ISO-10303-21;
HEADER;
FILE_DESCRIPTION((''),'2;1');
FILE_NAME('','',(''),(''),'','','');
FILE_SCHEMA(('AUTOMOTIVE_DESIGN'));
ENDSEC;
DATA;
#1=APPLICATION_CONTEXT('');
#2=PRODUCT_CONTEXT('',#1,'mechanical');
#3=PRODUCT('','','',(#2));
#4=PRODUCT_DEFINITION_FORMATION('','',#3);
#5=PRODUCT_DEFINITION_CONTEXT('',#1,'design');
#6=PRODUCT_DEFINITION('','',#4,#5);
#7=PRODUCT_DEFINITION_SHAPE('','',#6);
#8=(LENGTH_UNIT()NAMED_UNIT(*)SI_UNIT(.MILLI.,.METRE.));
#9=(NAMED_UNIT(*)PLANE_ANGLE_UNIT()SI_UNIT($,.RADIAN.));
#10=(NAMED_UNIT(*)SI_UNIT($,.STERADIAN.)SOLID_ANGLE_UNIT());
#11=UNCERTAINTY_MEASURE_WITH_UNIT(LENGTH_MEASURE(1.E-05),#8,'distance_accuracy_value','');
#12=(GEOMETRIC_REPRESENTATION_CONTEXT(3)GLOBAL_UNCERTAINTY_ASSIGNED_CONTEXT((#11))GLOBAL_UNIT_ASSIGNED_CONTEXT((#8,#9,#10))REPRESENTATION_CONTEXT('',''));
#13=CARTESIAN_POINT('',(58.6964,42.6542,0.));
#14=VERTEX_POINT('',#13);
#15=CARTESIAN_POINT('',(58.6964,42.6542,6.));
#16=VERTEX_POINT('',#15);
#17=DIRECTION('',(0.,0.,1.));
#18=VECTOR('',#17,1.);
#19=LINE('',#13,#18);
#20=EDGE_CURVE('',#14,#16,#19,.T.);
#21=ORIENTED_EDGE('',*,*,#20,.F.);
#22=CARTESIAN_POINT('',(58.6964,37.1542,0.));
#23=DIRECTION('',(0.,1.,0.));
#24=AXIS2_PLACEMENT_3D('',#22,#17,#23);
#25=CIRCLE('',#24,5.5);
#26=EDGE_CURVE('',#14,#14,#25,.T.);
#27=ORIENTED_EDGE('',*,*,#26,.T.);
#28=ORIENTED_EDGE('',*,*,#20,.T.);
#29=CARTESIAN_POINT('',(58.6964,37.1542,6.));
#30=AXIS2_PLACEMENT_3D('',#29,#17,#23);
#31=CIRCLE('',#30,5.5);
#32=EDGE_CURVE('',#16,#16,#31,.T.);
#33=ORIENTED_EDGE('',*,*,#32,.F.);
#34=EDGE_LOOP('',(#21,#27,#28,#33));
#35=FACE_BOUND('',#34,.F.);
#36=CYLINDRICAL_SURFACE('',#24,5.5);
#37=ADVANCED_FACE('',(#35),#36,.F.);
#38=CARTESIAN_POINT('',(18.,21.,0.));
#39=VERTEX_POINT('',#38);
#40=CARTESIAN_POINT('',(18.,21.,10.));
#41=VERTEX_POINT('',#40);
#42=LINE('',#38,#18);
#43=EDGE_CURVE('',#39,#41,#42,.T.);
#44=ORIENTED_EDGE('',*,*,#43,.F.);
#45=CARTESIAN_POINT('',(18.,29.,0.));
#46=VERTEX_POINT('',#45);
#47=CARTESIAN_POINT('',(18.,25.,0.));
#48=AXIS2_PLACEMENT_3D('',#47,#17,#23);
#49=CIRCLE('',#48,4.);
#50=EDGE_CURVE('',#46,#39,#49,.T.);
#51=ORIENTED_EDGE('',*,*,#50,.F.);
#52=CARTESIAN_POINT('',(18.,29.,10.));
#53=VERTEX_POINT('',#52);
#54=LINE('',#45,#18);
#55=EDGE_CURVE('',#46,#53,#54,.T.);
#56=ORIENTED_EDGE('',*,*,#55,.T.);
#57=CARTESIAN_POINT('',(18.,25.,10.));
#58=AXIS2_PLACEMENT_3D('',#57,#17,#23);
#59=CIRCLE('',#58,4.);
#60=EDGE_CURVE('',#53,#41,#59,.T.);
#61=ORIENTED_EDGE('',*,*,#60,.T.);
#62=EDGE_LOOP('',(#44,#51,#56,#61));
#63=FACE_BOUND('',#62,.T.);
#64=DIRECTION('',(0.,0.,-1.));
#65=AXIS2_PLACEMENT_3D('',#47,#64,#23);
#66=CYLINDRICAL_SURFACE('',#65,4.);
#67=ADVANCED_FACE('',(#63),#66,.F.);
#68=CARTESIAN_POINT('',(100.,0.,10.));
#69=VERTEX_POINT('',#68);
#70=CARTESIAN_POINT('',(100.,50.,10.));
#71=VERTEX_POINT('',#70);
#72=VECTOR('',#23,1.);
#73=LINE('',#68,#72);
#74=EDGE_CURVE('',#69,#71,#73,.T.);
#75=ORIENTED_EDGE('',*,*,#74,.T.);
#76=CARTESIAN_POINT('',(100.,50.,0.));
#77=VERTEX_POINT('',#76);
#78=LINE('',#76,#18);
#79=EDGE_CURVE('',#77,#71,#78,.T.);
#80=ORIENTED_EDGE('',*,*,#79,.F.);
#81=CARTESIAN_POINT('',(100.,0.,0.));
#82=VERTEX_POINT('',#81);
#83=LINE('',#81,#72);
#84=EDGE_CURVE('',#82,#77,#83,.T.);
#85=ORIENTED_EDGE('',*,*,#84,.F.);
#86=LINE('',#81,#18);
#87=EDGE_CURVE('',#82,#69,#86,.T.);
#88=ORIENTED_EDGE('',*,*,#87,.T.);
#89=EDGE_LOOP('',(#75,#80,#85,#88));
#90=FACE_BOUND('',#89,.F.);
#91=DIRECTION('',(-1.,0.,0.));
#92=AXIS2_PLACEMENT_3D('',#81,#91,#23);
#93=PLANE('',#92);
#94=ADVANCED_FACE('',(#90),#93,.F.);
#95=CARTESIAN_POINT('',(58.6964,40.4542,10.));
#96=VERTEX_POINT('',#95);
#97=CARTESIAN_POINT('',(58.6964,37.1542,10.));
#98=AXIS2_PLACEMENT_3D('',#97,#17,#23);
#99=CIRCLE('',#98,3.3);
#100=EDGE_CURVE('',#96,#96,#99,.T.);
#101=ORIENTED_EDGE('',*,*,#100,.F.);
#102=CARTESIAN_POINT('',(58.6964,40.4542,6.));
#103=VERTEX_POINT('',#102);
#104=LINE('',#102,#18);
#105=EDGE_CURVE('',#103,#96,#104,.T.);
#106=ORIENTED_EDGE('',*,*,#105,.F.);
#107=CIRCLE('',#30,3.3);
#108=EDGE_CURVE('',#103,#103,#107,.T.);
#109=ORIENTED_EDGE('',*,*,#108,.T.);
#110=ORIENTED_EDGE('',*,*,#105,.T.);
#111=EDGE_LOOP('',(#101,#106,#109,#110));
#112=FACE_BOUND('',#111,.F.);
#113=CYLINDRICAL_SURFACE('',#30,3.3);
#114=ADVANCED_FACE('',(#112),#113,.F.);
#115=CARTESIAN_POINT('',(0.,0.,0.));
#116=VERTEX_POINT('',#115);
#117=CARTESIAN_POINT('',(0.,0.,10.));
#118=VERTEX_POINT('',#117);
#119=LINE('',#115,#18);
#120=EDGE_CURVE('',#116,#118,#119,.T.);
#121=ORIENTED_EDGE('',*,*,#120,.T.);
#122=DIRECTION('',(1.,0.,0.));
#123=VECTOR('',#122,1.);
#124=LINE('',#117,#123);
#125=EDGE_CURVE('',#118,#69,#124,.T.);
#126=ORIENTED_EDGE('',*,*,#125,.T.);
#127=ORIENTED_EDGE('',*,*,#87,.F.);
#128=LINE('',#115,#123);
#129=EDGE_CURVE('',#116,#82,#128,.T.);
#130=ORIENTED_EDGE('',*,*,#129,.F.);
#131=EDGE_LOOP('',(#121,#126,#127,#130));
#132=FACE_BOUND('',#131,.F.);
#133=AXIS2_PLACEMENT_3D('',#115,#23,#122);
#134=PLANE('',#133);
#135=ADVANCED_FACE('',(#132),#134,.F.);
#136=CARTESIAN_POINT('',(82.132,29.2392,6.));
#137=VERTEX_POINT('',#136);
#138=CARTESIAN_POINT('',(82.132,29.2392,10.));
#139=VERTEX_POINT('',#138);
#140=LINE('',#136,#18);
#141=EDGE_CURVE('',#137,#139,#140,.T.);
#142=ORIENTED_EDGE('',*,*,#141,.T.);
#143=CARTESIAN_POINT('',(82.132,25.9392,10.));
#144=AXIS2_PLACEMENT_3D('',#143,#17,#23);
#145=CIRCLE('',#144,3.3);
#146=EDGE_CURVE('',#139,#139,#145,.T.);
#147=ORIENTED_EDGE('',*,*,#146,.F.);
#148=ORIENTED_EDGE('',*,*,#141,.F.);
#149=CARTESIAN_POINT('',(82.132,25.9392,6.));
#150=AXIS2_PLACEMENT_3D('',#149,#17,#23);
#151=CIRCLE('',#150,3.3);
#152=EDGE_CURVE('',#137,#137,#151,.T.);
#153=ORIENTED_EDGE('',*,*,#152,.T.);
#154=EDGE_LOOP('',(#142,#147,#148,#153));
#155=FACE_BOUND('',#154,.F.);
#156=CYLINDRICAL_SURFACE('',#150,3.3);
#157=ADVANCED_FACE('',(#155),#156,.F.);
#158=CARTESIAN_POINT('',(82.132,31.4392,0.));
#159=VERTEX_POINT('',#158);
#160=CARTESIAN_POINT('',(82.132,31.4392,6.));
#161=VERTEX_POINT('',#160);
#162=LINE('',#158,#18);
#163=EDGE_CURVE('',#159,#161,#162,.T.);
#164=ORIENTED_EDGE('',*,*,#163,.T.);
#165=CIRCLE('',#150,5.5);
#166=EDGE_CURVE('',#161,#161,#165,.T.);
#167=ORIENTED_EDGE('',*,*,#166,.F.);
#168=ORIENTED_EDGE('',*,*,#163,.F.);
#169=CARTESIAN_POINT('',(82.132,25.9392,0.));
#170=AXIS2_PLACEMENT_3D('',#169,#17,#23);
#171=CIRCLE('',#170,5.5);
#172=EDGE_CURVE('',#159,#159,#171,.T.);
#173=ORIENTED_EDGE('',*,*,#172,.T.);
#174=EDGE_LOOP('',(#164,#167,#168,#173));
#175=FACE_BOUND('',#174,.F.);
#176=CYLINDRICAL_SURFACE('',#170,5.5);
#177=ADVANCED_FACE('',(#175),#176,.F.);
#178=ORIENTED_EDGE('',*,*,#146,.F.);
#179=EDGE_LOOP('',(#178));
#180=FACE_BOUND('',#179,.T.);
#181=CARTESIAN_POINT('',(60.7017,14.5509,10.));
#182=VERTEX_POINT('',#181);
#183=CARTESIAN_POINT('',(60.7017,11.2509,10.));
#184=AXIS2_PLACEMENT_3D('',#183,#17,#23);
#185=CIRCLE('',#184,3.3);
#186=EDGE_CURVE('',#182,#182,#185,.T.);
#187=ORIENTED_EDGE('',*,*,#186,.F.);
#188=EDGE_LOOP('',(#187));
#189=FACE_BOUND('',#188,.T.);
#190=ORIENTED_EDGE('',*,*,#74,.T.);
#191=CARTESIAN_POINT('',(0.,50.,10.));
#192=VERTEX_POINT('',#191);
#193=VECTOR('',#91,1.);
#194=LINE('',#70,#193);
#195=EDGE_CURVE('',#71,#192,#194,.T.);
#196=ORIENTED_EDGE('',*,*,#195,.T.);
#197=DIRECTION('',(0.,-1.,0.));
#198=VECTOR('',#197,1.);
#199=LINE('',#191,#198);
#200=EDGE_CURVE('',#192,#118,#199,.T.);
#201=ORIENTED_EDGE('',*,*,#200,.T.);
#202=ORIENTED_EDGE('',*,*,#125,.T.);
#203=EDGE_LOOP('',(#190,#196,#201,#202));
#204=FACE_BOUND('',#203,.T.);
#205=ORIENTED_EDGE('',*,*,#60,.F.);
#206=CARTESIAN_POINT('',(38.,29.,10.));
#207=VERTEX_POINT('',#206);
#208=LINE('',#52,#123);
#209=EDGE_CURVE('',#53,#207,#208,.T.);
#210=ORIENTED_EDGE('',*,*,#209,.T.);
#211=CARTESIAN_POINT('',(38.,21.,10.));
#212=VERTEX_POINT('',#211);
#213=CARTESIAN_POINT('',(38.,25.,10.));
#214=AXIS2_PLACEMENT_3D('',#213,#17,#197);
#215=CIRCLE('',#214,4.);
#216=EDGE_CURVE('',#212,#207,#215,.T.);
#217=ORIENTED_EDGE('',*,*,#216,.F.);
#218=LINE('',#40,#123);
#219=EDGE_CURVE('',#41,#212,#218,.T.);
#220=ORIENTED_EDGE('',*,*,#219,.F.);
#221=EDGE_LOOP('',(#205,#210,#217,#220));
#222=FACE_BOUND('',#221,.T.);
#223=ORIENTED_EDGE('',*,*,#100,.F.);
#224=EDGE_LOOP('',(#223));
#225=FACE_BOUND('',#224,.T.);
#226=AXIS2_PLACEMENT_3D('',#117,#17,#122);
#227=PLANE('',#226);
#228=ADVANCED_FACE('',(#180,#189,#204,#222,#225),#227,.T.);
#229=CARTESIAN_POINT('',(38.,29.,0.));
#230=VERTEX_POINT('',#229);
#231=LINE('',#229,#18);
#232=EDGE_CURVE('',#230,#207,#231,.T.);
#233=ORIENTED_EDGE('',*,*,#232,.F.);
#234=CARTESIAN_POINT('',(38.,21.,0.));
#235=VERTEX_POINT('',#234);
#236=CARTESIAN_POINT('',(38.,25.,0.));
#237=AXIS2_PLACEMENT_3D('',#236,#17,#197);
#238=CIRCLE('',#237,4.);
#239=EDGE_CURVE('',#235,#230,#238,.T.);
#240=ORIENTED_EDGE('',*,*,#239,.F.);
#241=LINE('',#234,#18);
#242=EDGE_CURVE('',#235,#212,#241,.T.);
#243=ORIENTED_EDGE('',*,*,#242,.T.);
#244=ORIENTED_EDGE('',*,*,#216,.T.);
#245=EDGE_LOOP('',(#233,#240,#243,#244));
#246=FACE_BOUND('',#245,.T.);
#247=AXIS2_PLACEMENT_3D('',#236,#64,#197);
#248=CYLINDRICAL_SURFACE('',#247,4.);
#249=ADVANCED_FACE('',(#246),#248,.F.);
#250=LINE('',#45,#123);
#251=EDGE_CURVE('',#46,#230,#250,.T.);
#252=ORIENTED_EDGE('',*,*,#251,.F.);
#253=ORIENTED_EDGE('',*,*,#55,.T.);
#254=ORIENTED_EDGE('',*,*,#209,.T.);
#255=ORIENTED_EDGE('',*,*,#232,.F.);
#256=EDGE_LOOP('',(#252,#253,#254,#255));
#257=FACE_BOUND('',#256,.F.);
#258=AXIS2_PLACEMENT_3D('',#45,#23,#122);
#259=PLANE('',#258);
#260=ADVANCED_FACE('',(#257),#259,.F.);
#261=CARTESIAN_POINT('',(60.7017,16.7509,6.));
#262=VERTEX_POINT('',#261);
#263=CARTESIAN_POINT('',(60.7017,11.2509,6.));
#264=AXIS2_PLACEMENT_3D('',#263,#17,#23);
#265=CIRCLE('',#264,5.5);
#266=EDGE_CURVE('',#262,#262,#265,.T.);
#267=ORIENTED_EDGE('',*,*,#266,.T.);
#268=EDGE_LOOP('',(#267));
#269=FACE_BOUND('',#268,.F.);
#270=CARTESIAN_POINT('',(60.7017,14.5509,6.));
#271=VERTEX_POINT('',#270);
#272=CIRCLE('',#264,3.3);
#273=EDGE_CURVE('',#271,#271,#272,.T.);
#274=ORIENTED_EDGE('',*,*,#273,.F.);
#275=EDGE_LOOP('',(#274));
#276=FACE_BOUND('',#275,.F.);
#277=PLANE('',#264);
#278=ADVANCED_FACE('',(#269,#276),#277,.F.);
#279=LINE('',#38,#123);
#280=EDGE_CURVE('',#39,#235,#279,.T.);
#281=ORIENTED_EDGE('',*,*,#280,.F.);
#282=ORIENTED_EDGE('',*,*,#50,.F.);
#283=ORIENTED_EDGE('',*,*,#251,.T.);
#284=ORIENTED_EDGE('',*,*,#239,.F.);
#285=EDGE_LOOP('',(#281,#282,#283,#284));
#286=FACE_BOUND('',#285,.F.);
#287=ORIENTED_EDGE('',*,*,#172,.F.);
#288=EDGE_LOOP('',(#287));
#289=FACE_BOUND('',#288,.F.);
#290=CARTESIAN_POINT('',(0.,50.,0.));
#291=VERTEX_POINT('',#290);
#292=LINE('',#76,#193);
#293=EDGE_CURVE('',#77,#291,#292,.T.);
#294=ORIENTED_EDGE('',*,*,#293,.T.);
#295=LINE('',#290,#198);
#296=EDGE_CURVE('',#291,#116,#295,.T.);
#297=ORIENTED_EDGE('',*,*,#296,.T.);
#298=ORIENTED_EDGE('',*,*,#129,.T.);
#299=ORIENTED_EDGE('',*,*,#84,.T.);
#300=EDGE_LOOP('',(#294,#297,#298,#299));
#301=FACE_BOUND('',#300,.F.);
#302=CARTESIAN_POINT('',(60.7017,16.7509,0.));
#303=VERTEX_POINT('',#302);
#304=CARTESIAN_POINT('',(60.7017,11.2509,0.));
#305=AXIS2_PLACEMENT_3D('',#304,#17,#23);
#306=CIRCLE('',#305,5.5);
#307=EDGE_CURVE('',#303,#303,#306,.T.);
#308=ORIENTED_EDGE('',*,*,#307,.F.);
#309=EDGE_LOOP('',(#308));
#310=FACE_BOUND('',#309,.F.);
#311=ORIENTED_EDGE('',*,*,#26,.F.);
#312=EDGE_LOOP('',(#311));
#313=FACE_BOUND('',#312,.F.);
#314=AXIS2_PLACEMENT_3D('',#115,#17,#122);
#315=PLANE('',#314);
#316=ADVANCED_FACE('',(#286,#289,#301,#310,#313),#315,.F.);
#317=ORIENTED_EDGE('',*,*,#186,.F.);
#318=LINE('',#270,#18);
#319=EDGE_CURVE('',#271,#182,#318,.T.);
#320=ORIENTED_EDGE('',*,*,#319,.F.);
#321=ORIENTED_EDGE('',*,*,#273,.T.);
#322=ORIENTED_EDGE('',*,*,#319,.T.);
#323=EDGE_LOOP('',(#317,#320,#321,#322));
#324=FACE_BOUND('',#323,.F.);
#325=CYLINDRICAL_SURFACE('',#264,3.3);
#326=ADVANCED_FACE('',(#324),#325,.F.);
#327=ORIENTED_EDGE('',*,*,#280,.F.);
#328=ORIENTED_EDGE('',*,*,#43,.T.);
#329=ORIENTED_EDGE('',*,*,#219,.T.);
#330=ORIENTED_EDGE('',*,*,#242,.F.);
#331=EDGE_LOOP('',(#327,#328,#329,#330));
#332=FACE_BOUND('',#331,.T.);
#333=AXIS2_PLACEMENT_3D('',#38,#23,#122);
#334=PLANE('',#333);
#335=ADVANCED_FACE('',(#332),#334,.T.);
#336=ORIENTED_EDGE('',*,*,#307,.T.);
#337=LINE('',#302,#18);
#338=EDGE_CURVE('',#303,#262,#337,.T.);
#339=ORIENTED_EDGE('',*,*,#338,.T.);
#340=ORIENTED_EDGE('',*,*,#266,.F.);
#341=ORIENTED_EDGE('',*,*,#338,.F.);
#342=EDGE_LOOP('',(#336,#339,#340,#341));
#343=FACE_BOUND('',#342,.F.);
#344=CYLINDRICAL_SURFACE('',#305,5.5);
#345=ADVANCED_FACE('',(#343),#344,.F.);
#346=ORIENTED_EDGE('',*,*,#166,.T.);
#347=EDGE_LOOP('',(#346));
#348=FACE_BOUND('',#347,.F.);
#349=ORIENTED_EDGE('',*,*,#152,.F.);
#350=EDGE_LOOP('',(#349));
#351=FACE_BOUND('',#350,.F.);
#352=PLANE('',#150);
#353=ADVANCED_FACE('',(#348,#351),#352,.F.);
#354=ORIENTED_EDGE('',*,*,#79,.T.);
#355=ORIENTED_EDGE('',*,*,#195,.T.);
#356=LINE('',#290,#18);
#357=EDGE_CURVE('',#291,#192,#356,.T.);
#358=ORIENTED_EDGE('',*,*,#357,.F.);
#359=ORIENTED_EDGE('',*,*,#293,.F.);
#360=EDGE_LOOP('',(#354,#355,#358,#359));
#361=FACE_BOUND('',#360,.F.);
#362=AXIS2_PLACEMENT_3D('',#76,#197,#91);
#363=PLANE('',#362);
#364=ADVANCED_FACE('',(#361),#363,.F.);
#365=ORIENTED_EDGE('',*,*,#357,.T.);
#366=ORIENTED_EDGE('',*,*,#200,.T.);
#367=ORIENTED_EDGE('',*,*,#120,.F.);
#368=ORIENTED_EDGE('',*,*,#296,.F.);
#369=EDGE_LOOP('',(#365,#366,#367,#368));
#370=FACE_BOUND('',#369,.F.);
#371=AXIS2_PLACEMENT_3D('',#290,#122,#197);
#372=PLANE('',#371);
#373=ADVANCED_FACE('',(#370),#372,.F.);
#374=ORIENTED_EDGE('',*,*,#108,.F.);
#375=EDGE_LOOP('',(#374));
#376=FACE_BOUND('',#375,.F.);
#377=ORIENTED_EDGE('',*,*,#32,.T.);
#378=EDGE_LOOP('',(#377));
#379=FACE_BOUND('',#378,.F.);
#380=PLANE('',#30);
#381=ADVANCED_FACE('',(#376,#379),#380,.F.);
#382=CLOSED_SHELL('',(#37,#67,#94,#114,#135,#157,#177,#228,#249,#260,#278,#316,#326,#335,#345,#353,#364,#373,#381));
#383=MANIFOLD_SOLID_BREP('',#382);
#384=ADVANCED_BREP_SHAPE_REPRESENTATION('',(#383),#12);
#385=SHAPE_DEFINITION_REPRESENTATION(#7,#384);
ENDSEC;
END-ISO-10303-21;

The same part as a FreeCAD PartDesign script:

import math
import FreeCAD as App
import Part
import Sketcher
Q = App.Units.Quantity

doc = App.newDocument("Part")
body = doc.addObject("PartDesign::Body", "Body")

sketch1 = body.newObject("Sketcher::SketchObject", "Sketch")
sketch1.AttachmentSupport = (doc.getObject("XY_Plane"), [""])
sketch1.MapMode = "FlatFace"
sketch1.addGeometry([
    Part.LineSegment(App.Vector(0, 50, 0), App.Vector(0, 0, 0)),
    Part.LineSegment(App.Vector(0, 0, 0), App.Vector(100, 0, 0)),
    Part.LineSegment(App.Vector(100, 0, 0), App.Vector(100, 50, 0)),
    Part.LineSegment(App.Vector(100, 50, 0), App.Vector(0, 50, 0)),
    Part.ArcOfCircle(Part.Circle(App.Vector(18, 25, 0), App.Vector(0, 0, 1), 4), math.radians(90), math.radians(270)),
    Part.LineSegment(App.Vector(18, 29, 0), App.Vector(38, 29, 0)),
    Part.ArcOfCircle(Part.Circle(App.Vector(38, 25, 0), App.Vector(0, 0, 1), 4), math.radians(-90), math.radians(90)),
    Part.LineSegment(App.Vector(38, 21, 0), App.Vector(18, 21, 0)),
], False)
sketch1.addConstraint([
    Sketcher.Constraint("Coincident", 0, 2, 1, 1),
    Sketcher.Constraint("Coincident", 1, 2, 2, 1),
    Sketcher.Constraint("Coincident", 2, 2, 3, 1),
    Sketcher.Constraint("Coincident", 3, 2, 0, 1),
    Sketcher.Constraint("Tangent", 4, 1, 5, 1),
    Sketcher.Constraint("Tangent", 5, 2, 6, 2),
    Sketcher.Constraint("Tangent", 6, 1, 7, 1),
    Sketcher.Constraint("Tangent", 7, 2, 4, 2),
    Sketcher.Constraint("Vertical", 0),
    Sketcher.Constraint("Horizontal", 1),
    Sketcher.Constraint("Vertical", 2),
    Sketcher.Constraint("Horizontal", 3),
    Sketcher.Constraint("Horizontal", 5),
    Sketcher.Constraint("Horizontal", 7),
    Sketcher.Constraint("Coincident", 0, 2, -1, 1),
    Sketcher.Constraint("Radius", 4, Q("4 mm")),
    Sketcher.Constraint("DistanceX", 1, 1, 1, 2, Q("100 mm")),
    Sketcher.Constraint("DistanceX", 5, 1, 5, 2, Q("20 mm")),
    Sketcher.Constraint("DistanceY", 0, 2, 0, 1, Q("50 mm")),
    Sketcher.Constraint("DistanceX", -1, 1, 4, 3, Q("18 mm")),
    Sketcher.Constraint("DistanceY", -1, 1, 4, 3, Q("25 mm")),
])
pad1 = body.newObject("PartDesign::Pad", "Pad")
pad1.Profile = sketch1
pad1.Length = 10

sketch2 = body.newObject("Sketcher::SketchObject", "Sketch001")
sketch2.AttachmentSupport = (doc.getObject("XY_Plane"), [""])
sketch2.MapMode = "FlatFace"
sketch2.addGeometry([
    Part.Circle(App.Vector(58.7, 37.2, 0), App.Vector(0, 0, 1), 3.3),
    Part.Circle(App.Vector(60.7, 11.3, 0), App.Vector(0, 0, 1), 3.3),
    Part.Circle(App.Vector(82.1, 25.9, 0), App.Vector(0, 0, 1), 3.3),
], False)
sketch2.addConstraint([
    Sketcher.Constraint("Equal", 0, 1),
    Sketcher.Constraint("Equal", 1, 2),
    Sketcher.Constraint("Diameter", 0, Q("6.6 mm")),
    Sketcher.Constraint("DistanceY", -1, 1, 1, 3, Q("11.251 mm")),
    Sketcher.Constraint("DistanceX", -1, 1, 2, 3, Q("82.132 mm")),
    Sketcher.Constraint("DistanceY", 2, 3, 0, 3, Q("11.215 mm")),
    Sketcher.Constraint("DistanceX", -1, 1, 0, 3, Q("58.6964 mm")),
    Sketcher.Constraint("DistanceY", -1, 1, 0, 3, Q("37.1542 mm")),
    Sketcher.Constraint("DistanceX", -1, 1, 1, 3, Q("60.7017 mm")),
])
doc.recompute()
hole = body.newObject("PartDesign::Hole", "Hole")
hole.Profile = sketch2
hole.ThreadType = "None"
hole.Diameter = 6.6
hole.DepthType = "Dimension"
hole.Depth = 20
hole.DrillPoint = "Angled"
hole.DrillPointAngle = 118
hole.HoleCutType = "Counterbore"
hole.HoleCutDiameter = 11
hole.HoleCutDepth = 6
hole.Reversed = True

doc.recompute()
